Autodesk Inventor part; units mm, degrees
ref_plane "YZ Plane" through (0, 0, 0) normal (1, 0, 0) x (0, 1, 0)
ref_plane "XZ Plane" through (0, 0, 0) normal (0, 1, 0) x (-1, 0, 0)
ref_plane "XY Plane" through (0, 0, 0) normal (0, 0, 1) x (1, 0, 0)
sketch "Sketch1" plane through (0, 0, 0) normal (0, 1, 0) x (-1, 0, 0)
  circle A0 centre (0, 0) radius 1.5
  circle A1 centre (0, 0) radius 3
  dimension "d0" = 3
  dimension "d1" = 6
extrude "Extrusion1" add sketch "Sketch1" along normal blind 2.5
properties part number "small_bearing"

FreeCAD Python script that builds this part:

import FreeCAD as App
import Part
import Sketcher
from FreeCAD import Vector
Q = App.Units.Quantity

doc = App.newDocument("Part")
body = doc.addObject("PartDesign::Body", "Body")

sketch1 = body.newObject("Sketcher::SketchObject", "Sketch")
sketch1.AttachmentSupport = (doc.getObject("XZ_Plane"), [""])
sketch1.MapMode = "FlatFace"
sketch1.addGeometry(Part.Circle(Vector(0, 0, 0), Vector(0, 0, 1), 3), False)
sketch1.addGeometry(Part.Circle(Vector(0, 0, 0), Vector(0, 0, 1), 1.5), False)
sketch1.addConstraint(Sketcher.Constraint("Coincident", 0, 3, -1, 1))
sketch1.addConstraint(Sketcher.Constraint("Coincident", 1, 3, -1, 1))
sketch1.addConstraint(Sketcher.Constraint("Diameter", 0, Q("6 mm")))
sketch1.addConstraint(Sketcher.Constraint("Diameter", 1, Q("3 mm")))
pad1 = body.newObject("PartDesign::Pad", "Pad")
pad1.Profile = sketch1
pad1.Length = 2.5
pad1.Reversed = True

doc.recompute()
